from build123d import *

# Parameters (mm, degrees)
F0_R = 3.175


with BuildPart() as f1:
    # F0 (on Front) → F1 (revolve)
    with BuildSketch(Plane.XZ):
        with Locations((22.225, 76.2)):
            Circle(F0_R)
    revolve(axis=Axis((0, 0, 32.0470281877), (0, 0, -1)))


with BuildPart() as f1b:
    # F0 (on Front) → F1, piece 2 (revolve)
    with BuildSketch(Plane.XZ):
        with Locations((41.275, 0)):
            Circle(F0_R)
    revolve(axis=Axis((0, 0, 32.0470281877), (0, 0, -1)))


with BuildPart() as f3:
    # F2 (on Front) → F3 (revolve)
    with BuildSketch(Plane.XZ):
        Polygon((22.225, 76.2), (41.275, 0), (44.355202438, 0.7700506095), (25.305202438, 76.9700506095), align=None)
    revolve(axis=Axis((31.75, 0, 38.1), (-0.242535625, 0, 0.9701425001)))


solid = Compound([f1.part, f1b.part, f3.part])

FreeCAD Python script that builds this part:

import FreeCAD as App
import Part
import Sketcher
from FreeCAD import Vector
Q = App.Units.Quantity


def add_polygon(sketch, points):
    """Adds a closed chain of lines whose ends are joined by coincident constraints."""
    first, n = sketch.GeometryCount, len(points)
    for a, b in zip(points, points[1:] + points[:1]):
        sketch.addGeometry(Part.LineSegment(App.Vector(*a, 0), App.Vector(*b, 0)), False)
    for i in range(n):
        sketch.addConstraint(Sketcher.Constraint("Coincident", first + i, 2, first + (i + 1) % n, 1))

doc = App.newDocument("Part")
body = doc.addObject("PartDesign::Body", "Body")

# Sketch on XZ plane
sketch1 = doc.addObject("Sketcher::SketchObject", "Sketch")
body.addObject(sketch1)
sketch1.AttachmentSupport = (doc.XZ_Plane, [""])
sketch1.MapMode = "FlatFace"
sketch1.addGeometry(Part.Circle(Vector(22.2, 76.2, 0), Vector(0, 0, 1), 3.2), False)
sketch1.addConstraint([
    Sketcher.Constraint("Diameter", 0, Q("0.25 in")),
    Sketcher.Constraint("DistanceY", -1, 1, 0, 3, Q("3 in")),
    Sketcher.Constraint("DistanceX", -1, 1, 0, 3, Q("0.875 in")),
])
revolution = doc.addObject("PartDesign::Revolution", "Revolution")
body.addObject(revolution)
revolution.Profile = sketch1
revolution.ReferenceAxis = (sketch1, ["V_Axis"])
revolution.Angle = 360
body2 = doc.addObject("PartDesign::Body", "Body001")

# Sketch on XZ plane
sketch2 = doc.addObject("Sketcher::SketchObject", "Sketch001")
body2.addObject(sketch2)
sketch2.AttachmentSupport = (doc.getObject("XZ_Plane001"), [""])
sketch2.MapMode = "FlatFace"
sketch2.addGeometry(Part.Circle(Vector(41.3, 0, 0), Vector(0, 0, 1), 3.2), False)
sketch2.addConstraint([
    Sketcher.Constraint("PointOnObject", 0, 3, -1),
    Sketcher.Constraint("Diameter", 0, Q("0.25 in")),
    Sketcher.Constraint("DistanceX", -1, 1, 0, 3, Q("1.625 in")),
])
revolution2 = doc.addObject("PartDesign::Revolution", "Revolution001")
body2.addObject(revolution2)
revolution2.Profile = sketch2
revolution2.ReferenceAxis = (sketch2, ["V_Axis"])
revolution2.Angle = 360
body3 = doc.addObject("PartDesign::Body", "Body002")

# Sketch on XZ plane
sketch3 = doc.addObject("Sketcher::SketchObject", "Sketch002")
body3.addObject(sketch3)
sketch3.AttachmentSupport = (doc.getObject("XZ_Plane002"), [""])
sketch3.MapMode = "FlatFace"
add_polygon(sketch3, [(22.2, 76.2), (41.3, 0), (44.4, 0.8), (25.3, 77)])  # lines 0-3
sketch3.addGeometry(Part.LineSegment(Vector(41.3, 0, 0), Vector(22.2, 76.2, 0)), True)  # axis
sketch3.addConstraint([
    Sketcher.Constraint("Coincident", 4, 1, 0, 2),
    Sketcher.Constraint("Coincident", 4, 2, 3, 2),
    Sketcher.Constraint("PointOnObject", 0, 2, -1),
    Sketcher.Constraint("Perpendicular", 0, 1),
    Sketcher.Constraint("Perpendicular", 1, 2),
    Sketcher.Constraint("Perpendicular", 2, 3),
    Sketcher.Constraint("DistanceY", -1, 1, 3, 2, Q("3 in")),
    Sketcher.Constraint("DistanceX", 2, 2, 1, 2, Q("0.75 in")),
    Sketcher.Constraint("Distance", 1, Q("0.125 in")),
    Sketcher.Constraint("DistanceX", -1, 1, 0, 2, Q("1.625 in")),
])
revolution3 = doc.addObject("PartDesign::Revolution", "Revolution002")
body3.addObject(revolution3)
revolution3.Profile = sketch3
revolution3.ReferenceAxis = (sketch3, ["Axis0"])
revolution3.Angle = 360

doc.recompute()
